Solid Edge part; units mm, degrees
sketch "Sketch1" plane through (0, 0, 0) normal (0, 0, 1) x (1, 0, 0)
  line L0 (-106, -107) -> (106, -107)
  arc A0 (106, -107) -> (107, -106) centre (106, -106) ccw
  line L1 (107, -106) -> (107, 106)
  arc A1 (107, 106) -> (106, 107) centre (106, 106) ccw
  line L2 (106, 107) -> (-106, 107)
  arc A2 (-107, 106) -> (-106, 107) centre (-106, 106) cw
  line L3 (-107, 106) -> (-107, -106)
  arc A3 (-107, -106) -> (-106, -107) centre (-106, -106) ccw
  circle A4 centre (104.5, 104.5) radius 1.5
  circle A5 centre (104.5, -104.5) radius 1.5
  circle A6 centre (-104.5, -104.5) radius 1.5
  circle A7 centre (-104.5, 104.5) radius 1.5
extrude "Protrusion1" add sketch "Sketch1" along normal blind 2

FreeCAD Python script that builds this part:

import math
import FreeCAD as App
import Part
import Sketcher
Q = App.Units.Quantity

doc = App.newDocument("Part")
body = doc.addObject("PartDesign::Body", "Body")

# Sketch on XY plane
sketch1 = body.newObject("Sketcher::SketchObject", "Sketch")
sketch1.AttachmentSupport = (doc.getObject("XY_Plane"), [""])
sketch1.MapMode = "FlatFace"
sketch1.addGeometry([
    Part.ArcOfCircle(Part.Circle(App.Vector(-106, -106, 0), App.Vector(0, 0, 1), 1), math.radians(180), math.radians(270)),  # 0
    Part.LineSegment(App.Vector(-106, -107, 0), App.Vector(106, -107, 0)),  # 1
    Part.ArcOfCircle(Part.Circle(App.Vector(106, -106, 0), App.Vector(0, 0, 1), 1), math.radians(-90), math.radians(0)),  # 2
    Part.LineSegment(App.Vector(107, -106, 0), App.Vector(107, 106, 0)),  # 3
    Part.ArcOfCircle(Part.Circle(App.Vector(106, 106, 0), App.Vector(0, 0, 1), 1), math.radians(0), math.radians(90)),  # 4
    Part.LineSegment(App.Vector(106, 107, 0), App.Vector(-106, 107, 0)),  # 5
    Part.ArcOfCircle(Part.Circle(App.Vector(-106, 106, 0), App.Vector(0, 0, 1), 1), math.radians(90), math.radians(180)),  # 6
    Part.LineSegment(App.Vector(-107, 106, 0), App.Vector(-107, -106, 0)),  # 7
    Part.Circle(App.Vector(-104.5, -104.5, 0), App.Vector(0, 0, 1), 1.5),  # 8
    Part.Circle(App.Vector(104.5, -104.5, 0), App.Vector(0, 0, 1), 1.5),  # 9
    Part.Circle(App.Vector(-104.5, 104.5, 0), App.Vector(0, 0, 1), 1.5),  # 10
    Part.Circle(App.Vector(104.5, 104.5, 0), App.Vector(0, 0, 1), 1.5),  # 11
], False)
sketch1.addConstraint([
    Sketcher.Constraint("Tangent", 0, 2, 1, 1),
    Sketcher.Constraint("Tangent", 1, 2, 2, 1),
    Sketcher.Constraint("Tangent", 2, 2, 3, 1),
    Sketcher.Constraint("Tangent", 3, 2, 4, 1),
    Sketcher.Constraint("Tangent", 4, 2, 5, 1),
    Sketcher.Constraint("Tangent", 5, 2, 6, 1),
    Sketcher.Constraint("Tangent", 6, 2, 7, 1),
    Sketcher.Constraint("Tangent", 7, 2, 0, 1),
    Sketcher.Constraint("Horizontal", 1),
    Sketcher.Constraint("Vertical", 3),
    Sketcher.Constraint("Horizontal", 5),
    Sketcher.Constraint("Vertical", 7),
    Sketcher.Constraint("Equal", 0, 2),
    Sketcher.Constraint("Equal", 2, 4),
    Sketcher.Constraint("Equal", 4, 6),
    Sketcher.Constraint("Equal", 8, 9),
    Sketcher.Constraint("Equal", 9, 10),
    Sketcher.Constraint("Equal", 10, 11),
    Sketcher.Constraint("Symmetric", 0, 3, 4, 3, -1, 1),
    Sketcher.Constraint("Symmetric", 9, 3, 10, 3, -1, 1),
    Sketcher.Constraint("Symmetric", 8, 3, 11, 3, -1, 1),
    Sketcher.Constraint("Symmetric", 8, 3, 9, 3, -2),
    Sketcher.Constraint("Equal", 5, 3),
    Sketcher.Constraint("Diameter", 8, Q("3 mm")),
    Sketcher.Constraint("Radius", 0, Q("1 mm")),
    Sketcher.Constraint("DistanceX", 1, 1, 1, 2, Q("212 mm")),
    Sketcher.Constraint("DistanceX", 8, 3, 9, 3, Q("209 mm")),
    Sketcher.Constraint("DistanceY", 8, 3, 10, 3, Q("209 mm")),
])
pad1 = body.newObject("PartDesign::Pad", "Pad")
pad1.Profile = sketch1
pad1.Length = 2

doc.recompute()
